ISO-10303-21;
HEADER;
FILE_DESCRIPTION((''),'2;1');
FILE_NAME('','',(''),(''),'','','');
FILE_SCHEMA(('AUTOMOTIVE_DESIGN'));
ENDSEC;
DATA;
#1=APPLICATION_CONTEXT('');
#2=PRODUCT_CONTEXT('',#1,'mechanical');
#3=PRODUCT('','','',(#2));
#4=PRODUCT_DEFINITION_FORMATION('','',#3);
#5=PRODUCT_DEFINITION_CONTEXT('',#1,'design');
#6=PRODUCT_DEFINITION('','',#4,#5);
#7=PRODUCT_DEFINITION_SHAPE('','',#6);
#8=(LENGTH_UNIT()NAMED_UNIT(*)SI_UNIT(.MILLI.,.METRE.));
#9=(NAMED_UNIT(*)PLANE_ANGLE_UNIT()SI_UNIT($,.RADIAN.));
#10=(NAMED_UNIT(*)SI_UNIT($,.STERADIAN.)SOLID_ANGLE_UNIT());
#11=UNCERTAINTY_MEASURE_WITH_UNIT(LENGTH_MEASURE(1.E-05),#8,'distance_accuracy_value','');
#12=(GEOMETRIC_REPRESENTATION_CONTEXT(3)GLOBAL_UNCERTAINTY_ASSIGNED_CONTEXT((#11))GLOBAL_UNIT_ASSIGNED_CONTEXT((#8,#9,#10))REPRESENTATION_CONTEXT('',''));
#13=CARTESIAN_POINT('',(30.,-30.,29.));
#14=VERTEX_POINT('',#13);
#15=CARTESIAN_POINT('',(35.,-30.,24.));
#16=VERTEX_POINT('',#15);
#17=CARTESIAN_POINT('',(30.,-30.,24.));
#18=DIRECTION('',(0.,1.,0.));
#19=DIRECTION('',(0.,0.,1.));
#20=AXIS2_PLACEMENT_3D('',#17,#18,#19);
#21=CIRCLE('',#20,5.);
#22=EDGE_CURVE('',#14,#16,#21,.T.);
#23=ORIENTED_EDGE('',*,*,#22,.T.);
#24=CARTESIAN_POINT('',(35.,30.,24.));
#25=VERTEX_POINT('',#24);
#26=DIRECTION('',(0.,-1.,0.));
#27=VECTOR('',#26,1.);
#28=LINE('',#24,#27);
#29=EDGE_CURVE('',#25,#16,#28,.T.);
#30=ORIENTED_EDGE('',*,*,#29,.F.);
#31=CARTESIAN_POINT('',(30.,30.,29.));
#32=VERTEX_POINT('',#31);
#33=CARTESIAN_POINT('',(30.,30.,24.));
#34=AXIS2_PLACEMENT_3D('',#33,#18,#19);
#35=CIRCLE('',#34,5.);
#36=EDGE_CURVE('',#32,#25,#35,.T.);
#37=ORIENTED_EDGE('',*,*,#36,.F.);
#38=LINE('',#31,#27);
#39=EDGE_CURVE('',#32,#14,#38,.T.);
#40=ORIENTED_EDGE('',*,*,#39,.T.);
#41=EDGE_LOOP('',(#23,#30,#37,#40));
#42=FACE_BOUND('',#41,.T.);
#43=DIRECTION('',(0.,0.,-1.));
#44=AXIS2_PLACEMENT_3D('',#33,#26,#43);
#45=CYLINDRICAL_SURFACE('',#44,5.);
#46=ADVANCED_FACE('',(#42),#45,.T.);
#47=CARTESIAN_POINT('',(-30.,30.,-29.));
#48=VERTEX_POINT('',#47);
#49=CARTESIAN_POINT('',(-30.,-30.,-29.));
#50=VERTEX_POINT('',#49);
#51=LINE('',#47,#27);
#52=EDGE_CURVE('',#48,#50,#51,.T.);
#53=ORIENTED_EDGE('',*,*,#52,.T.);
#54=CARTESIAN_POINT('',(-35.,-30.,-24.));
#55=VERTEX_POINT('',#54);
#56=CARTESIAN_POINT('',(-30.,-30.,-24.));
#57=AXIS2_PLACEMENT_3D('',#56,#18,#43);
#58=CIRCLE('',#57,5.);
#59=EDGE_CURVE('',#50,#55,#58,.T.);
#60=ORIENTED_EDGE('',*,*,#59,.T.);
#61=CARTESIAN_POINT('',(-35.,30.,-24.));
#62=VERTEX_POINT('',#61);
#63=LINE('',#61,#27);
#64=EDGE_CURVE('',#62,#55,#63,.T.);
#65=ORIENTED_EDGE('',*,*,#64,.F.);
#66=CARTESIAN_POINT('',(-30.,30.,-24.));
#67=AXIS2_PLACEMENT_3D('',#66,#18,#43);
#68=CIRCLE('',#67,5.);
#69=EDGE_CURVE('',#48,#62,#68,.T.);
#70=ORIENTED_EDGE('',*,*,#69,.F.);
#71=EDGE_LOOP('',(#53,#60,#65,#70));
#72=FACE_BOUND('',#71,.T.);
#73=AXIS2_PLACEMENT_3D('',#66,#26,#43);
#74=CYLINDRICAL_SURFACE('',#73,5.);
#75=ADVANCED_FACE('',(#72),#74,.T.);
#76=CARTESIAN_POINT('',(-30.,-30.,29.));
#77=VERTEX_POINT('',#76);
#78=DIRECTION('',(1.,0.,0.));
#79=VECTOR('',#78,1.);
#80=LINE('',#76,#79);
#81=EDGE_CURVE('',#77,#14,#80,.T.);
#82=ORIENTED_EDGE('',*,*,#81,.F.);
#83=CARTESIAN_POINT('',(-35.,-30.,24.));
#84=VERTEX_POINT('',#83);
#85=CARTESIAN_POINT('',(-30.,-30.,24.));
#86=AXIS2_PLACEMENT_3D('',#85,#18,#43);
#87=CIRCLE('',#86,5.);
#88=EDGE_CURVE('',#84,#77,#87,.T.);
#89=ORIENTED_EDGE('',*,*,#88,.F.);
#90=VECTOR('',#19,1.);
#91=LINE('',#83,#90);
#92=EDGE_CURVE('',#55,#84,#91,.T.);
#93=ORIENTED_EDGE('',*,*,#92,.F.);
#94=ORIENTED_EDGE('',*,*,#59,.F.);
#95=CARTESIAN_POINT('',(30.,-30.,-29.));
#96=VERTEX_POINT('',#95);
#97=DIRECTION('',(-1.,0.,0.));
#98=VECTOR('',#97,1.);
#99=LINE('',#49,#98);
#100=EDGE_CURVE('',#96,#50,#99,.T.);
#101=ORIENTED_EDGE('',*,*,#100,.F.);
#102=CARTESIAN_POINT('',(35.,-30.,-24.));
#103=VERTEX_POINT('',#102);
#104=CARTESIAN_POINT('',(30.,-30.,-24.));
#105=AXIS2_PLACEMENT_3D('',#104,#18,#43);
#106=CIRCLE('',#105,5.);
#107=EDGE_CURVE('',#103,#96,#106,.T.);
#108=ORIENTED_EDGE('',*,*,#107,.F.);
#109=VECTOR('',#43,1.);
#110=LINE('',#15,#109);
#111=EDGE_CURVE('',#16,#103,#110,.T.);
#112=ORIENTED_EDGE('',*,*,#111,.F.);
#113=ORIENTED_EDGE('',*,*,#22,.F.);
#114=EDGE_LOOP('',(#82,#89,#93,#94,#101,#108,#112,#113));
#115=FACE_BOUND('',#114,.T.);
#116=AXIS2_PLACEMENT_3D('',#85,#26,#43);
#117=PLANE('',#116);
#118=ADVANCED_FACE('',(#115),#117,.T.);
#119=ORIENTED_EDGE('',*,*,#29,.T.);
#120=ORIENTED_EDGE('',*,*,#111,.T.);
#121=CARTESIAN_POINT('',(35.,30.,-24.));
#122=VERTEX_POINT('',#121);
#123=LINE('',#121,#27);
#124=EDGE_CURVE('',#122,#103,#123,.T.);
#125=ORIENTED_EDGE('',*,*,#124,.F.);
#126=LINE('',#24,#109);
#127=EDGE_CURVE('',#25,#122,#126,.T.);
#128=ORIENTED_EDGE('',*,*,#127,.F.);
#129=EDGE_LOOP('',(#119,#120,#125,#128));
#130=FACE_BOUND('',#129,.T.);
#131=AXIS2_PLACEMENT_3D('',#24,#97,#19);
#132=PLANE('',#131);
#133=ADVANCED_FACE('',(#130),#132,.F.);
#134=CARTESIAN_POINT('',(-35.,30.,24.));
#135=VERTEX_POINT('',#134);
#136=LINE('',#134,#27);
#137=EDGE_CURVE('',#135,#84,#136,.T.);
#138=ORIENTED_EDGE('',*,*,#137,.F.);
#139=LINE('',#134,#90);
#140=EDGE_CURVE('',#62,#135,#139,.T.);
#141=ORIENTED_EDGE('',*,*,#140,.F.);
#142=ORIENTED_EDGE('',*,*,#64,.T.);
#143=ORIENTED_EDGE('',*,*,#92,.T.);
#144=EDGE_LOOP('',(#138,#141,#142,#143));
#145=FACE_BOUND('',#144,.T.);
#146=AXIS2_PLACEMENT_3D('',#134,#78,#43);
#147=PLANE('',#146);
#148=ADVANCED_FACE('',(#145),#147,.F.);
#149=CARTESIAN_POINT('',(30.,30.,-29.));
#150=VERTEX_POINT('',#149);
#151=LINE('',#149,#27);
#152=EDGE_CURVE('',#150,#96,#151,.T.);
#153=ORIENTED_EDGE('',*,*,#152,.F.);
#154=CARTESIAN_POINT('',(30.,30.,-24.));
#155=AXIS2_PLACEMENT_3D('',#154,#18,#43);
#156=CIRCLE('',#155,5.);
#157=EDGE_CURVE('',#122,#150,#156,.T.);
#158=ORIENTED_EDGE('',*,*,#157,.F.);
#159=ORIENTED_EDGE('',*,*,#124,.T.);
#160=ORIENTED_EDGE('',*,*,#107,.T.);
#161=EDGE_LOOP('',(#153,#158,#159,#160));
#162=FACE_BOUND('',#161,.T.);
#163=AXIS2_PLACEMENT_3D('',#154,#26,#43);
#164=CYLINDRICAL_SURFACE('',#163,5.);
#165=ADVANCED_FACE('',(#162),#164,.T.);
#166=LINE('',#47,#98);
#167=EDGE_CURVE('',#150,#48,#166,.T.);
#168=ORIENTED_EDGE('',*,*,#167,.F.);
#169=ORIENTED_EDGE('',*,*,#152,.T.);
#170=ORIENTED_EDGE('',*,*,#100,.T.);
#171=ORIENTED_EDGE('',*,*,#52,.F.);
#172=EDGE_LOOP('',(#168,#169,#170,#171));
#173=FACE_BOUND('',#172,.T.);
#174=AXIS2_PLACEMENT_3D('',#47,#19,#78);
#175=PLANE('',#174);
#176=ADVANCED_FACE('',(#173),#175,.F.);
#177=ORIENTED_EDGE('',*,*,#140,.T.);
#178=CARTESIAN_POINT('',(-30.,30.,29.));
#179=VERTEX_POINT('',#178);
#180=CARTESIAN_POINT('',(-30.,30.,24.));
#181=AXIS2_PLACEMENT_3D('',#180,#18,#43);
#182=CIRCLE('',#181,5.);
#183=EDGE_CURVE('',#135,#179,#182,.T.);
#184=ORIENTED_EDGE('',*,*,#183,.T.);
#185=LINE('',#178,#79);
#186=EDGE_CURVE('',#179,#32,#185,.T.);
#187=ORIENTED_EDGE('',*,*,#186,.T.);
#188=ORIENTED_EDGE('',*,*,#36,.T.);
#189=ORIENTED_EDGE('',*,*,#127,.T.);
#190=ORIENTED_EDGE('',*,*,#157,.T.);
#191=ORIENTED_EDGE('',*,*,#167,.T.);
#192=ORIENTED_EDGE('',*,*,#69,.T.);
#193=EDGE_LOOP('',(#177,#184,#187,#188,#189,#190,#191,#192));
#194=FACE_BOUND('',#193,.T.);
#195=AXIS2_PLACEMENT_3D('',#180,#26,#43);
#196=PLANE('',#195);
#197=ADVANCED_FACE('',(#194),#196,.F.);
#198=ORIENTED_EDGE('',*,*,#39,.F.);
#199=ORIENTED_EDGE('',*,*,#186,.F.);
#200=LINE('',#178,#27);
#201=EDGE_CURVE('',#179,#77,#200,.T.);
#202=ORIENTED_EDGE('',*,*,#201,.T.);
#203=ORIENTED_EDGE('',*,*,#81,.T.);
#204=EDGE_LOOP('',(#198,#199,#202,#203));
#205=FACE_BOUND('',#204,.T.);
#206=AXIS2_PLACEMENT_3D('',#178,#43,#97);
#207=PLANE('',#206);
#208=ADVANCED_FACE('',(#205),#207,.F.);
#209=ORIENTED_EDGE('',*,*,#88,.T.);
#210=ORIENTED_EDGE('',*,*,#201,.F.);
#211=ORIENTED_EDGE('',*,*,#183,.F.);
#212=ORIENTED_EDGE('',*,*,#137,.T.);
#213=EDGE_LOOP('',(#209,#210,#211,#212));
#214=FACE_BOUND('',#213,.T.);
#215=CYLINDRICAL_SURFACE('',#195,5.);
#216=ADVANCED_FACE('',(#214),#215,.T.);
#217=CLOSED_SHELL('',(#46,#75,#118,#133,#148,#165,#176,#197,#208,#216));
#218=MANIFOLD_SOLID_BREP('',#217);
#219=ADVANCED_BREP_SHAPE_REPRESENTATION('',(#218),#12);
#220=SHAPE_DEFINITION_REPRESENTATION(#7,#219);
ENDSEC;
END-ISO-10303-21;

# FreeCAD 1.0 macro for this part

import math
import FreeCAD as App
import Part
import Sketcher

V = App.Vector
Q = App.Units.Quantity

doc = App.newDocument("Part")
params = doc.addObject("Spreadsheet::Sheet", "Params")
for row, (alias, value) in enumerate([
    ("sketch1_radius", "5 mm"),
    ("sketch1_width", "60 mm"),
    ("sketch1_height", "48 mm"),
    ("pad1_length", "60 mm"),
], start=1):
    params.set(f"A{row}", alias)
    params.set(f"B{row}", "=" + value)
    params.setAlias(f"B{row}", alias)

body = doc.addObject("PartDesign::Body", "Body")

# Sketch on XZ plane
sketch1 = body.newObject("Sketcher::SketchObject", "Sketch")
sketch1.AttachmentSupport = (doc.getObject("XZ_Plane"), [""])
sketch1.MapMode = "FlatFace"
sketch1.addGeometry([
    Part.LineSegment(V(-30, 29, 0), V(30, 29, 0)),  # 0
    Part.ArcOfCircle(Part.Circle(V(30, 24, 0), V(0, 0, 1), 5), math.radians(0), math.radians(90)),  # 1
    Part.LineSegment(V(35, 24, 0), V(35, -24, 0)),  # 2
    Part.ArcOfCircle(Part.Circle(V(30, -24, 0), V(0, 0, 1), 5), math.radians(-90), math.radians(0)),  # 3
    Part.LineSegment(V(30, -29, 0), V(-30, -29, 0)),  # 4
    Part.ArcOfCircle(Part.Circle(V(-30, -24, 0), V(0, 0, 1), 5), math.radians(180), math.radians(270)),  # 5
    Part.LineSegment(V(-35, -24, 0), V(-35, 24, 0)),  # 6
    Part.ArcOfCircle(Part.Circle(V(-30, 24, 0), V(0, 0, 1), 5), math.radians(90), math.radians(180)),  # 7
], False)
sketch1.addConstraint([
    Sketcher.Constraint("Tangent", 0, 2, 1, 2),
    Sketcher.Constraint("Tangent", 1, 1, 2, 1),
    Sketcher.Constraint("Tangent", 2, 2, 3, 2),
    Sketcher.Constraint("Tangent", 3, 1, 4, 1),
    Sketcher.Constraint("Tangent", 4, 2, 5, 2),
    Sketcher.Constraint("Tangent", 5, 1, 6, 1),
    Sketcher.Constraint("Tangent", 6, 2, 7, 2),
    Sketcher.Constraint("Tangent", 7, 1, 0, 1),
    Sketcher.Constraint("Horizontal", 0),
    Sketcher.Constraint("Vertical", 2),
    Sketcher.Constraint("Horizontal", 4),
    Sketcher.Constraint("Vertical", 6),
    Sketcher.Constraint("Equal", 1, 3),
    Sketcher.Constraint("Equal", 3, 5),
    Sketcher.Constraint("Equal", 5, 7),
    Sketcher.Constraint("Symmetric", 1, 3, 5, 3, -1, 1),
    Sketcher.Constraint("Radius", 1, Q("5 mm")),
    Sketcher.Constraint("DistanceX", 0, 1, 0, 2, Q("60 mm")),
    Sketcher.Constraint("DistanceY", 2, 2, 2, 1, Q("48 mm")),
])
sketch1.setExpression("Constraints[16]", "Params.sketch1_radius")
sketch1.setExpression("Constraints[17]", "Params.sketch1_width")
sketch1.setExpression("Constraints[18]", "Params.sketch1_height")
pad1 = body.newObject("PartDesign::Pad", "Pad")
pad1.Profile = sketch1
pad1.setExpression("Length", "Params.pad1_length")
pad1.Midplane = True

doc.recompute()
